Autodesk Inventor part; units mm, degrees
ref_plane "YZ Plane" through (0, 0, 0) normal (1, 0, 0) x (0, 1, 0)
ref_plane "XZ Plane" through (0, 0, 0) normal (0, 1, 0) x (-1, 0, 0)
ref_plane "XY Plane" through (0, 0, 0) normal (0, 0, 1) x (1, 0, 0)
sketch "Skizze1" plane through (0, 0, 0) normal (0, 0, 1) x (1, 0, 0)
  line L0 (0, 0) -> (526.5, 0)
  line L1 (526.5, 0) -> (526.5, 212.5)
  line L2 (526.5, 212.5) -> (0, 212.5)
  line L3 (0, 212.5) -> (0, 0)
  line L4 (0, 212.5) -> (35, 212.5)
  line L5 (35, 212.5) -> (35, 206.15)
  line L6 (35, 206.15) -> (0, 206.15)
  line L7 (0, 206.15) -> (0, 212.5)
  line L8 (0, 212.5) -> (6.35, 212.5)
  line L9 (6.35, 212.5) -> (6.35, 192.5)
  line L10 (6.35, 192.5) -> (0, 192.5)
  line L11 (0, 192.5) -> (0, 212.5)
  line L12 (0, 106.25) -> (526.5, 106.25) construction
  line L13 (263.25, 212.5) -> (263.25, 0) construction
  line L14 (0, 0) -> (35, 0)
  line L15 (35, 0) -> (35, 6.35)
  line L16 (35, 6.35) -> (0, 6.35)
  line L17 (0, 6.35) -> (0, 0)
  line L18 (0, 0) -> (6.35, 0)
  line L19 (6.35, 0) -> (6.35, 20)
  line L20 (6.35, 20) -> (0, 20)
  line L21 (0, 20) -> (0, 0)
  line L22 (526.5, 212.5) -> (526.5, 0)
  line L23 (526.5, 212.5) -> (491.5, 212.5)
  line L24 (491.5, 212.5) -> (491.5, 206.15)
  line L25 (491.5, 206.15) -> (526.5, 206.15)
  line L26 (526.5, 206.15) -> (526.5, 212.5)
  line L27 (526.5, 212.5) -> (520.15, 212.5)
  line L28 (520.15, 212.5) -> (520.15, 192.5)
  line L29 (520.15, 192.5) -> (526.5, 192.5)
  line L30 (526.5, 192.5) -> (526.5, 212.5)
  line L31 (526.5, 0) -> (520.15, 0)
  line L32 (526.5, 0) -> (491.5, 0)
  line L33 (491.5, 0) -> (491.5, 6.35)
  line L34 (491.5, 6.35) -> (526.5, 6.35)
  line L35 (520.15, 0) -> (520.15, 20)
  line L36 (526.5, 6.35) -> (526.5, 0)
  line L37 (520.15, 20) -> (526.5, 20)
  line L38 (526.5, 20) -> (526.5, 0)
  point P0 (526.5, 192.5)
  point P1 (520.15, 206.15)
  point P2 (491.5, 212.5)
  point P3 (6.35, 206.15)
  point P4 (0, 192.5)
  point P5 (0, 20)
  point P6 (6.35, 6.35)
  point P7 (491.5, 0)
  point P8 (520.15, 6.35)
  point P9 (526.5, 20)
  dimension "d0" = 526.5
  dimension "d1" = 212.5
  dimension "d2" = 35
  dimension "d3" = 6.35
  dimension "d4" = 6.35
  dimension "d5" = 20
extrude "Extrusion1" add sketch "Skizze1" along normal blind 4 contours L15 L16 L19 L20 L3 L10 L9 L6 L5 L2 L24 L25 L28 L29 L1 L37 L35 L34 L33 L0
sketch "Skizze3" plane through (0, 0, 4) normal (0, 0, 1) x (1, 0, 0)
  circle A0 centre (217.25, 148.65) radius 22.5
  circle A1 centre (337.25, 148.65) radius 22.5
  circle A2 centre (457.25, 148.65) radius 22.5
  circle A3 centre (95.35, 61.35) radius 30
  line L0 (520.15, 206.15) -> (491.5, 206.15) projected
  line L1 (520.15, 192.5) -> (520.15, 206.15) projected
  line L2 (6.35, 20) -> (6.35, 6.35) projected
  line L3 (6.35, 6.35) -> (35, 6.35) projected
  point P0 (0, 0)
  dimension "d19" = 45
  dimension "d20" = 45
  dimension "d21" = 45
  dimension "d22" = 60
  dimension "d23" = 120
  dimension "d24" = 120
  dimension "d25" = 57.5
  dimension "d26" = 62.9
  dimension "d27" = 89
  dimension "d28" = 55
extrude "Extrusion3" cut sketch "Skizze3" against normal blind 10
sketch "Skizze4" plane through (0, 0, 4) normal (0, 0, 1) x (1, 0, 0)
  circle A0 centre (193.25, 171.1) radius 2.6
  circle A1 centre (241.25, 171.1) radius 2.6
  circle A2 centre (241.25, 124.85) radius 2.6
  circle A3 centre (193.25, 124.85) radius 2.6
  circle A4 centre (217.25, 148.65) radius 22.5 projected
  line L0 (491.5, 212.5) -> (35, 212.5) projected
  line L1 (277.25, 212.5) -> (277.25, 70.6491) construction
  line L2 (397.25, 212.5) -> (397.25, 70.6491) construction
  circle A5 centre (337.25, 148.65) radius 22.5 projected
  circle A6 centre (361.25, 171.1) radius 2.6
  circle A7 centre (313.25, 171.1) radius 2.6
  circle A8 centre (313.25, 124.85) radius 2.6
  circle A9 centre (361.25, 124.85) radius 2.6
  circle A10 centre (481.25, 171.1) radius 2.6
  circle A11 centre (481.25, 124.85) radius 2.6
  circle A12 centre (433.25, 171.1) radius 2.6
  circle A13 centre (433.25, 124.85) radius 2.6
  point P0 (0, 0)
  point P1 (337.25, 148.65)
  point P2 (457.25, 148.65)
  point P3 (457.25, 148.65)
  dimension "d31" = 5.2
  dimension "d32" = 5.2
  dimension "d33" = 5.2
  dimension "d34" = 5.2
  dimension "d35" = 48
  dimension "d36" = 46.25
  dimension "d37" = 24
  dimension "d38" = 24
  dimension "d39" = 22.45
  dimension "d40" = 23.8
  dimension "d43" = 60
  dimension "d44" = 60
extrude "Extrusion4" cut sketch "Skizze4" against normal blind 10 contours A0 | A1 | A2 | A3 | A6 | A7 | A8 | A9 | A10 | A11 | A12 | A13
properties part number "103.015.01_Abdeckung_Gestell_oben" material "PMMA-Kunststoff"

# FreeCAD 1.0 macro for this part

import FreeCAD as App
import Part
import Sketcher

V = App.Vector

doc = App.newDocument("Part")
params = doc.addObject("Spreadsheet::Sheet", "Params")
for row, (alias, value) in enumerate([
    ("sketch1_width", "6.35 mm"),
    ("pad1_length", "4 mm"),
    ("sketch2_diameter", "45 mm"),
    ("sketch2_diameter2", "60 mm"),
    ("pocket1_length", "10 mm"),
    ("sketch3_diameter", "5.2 mm"),
    ("pocket2_length", "10 mm"),
], start=1):
    params.set(f"A{row}", alias)
    params.set(f"B{row}", "=" + value)
    params.setAlias(f"B{row}", alias)

body = doc.addObject("PartDesign::Body", "Body")

# Sketch on XY plane
sketch1 = doc.addObject("Sketcher::SketchObject", "Sketch")
body.addObject(sketch1)
sketch1.AttachmentSupport = (doc.XY_Plane, [""])
sketch1.MapMode = "FlatFace"
sketch1.addGeometry(Part.LineSegment(V(35, 6.35, 0), V(35, 0, 0)), False)
sketch1.addGeometry(Part.LineSegment(V(35, 0, 0), V(491.5, 0, 0)), False)
sketch1.addGeometry(Part.LineSegment(V(491.5, 0, 0), V(491.5, 6.35, 0)), False)
sketch1.addGeometry(Part.LineSegment(V(491.5, 6.35, 0), V(520.15, 6.35, 0)), False)
sketch1.addGeometry(Part.LineSegment(V(520.15, 6.35, 0), V(520.15, 20, 0)), False)
sketch1.addGeometry(Part.LineSegment(V(520.15, 20, 0), V(526.5, 20, 0)), False)
sketch1.addGeometry(Part.LineSegment(V(526.5, 20, 0), V(526.5, 192.5, 0)), False)
sketch1.addGeometry(Part.LineSegment(V(526.5, 192.5, 0), V(520.15, 192.5, 0)), False)
sketch1.addGeometry(Part.LineSegment(V(520.15, 192.5, 0), V(520.15, 206.15, 0)), False)
sketch1.addGeometry(Part.LineSegment(V(520.15, 206.15, 0), V(491.5, 206.15, 0)), False)
sketch1.addGeometry(Part.LineSegment(V(491.5, 206.15, 0), V(491.5, 212.5, 0)), False)
sketch1.addGeometry(Part.LineSegment(V(491.5, 212.5, 0), V(35, 212.5, 0)), False)
sketch1.addGeometry(Part.LineSegment(V(35, 212.5, 0), V(35, 206.15, 0)), False)
sketch1.addGeometry(Part.LineSegment(V(35, 206.15, 0), V(6.35, 206.15, 0)), False)
sketch1.addGeometry(Part.LineSegment(V(6.35, 206.15, 0), V(6.35, 192.5, 0)), False)
sketch1.addGeometry(Part.LineSegment(V(6.35, 192.5, 0), V(0, 192.5, 0)), False)
sketch1.addGeometry(Part.LineSegment(V(0, 192.5, 0), V(0, 20, 0)), False)
sketch1.addGeometry(Part.LineSegment(V(0, 20, 0), V(6.35, 20, 0)), False)
sketch1.addGeometry(Part.LineSegment(V(6.35, 20, 0), V(6.35, 6.35, 0)), False)
sketch1.addGeometry(Part.LineSegment(V(6.35, 6.35, 0), V(35, 6.35, 0)), False)
sketch1.addConstraint(Sketcher.Constraint("Coincident", 0, 2, 1, 1))
sketch1.addConstraint(Sketcher.Constraint("Coincident", 1, 2, 2, 1))
sketch1.addConstraint(Sketcher.Constraint("Coincident", 2, 2, 3, 1))
sketch1.addConstraint(Sketcher.Constraint("Coincident", 3, 2, 4, 1))
sketch1.addConstraint(Sketcher.Constraint("Coincident", 4, 2, 5, 1))
sketch1.addConstraint(Sketcher.Constraint("Coincident", 5, 2, 6, 1))
sketch1.addConstraint(Sketcher.Constraint("Coincident", 6, 2, 7, 1))
sketch1.addConstraint(Sketcher.Constraint("Coincident", 7, 2, 8, 1))
sketch1.addConstraint(Sketcher.Constraint("Coincident", 8, 2, 9, 1))
sketch1.addConstraint(Sketcher.Constraint("Coincident", 9, 2, 10, 1))
sketch1.addConstraint(Sketcher.Constraint("Coincident", 10, 2, 11, 1))
sketch1.addConstraint(Sketcher.Constraint("Coincident", 11, 2, 12, 1))
sketch1.addConstraint(Sketcher.Constraint("Coincident", 12, 2, 13, 1))
sketch1.addConstraint(Sketcher.Constraint("Coincident", 13, 2, 14, 1))
sketch1.addConstraint(Sketcher.Constraint("Coincident", 14, 2, 15, 1))
sketch1.addConstraint(Sketcher.Constraint("Coincident", 15, 2, 16, 1))
sketch1.addConstraint(Sketcher.Constraint("Coincident", 16, 2, 17, 1))
sketch1.addConstraint(Sketcher.Constraint("Coincident", 17, 2, 18, 1))
sketch1.addConstraint(Sketcher.Constraint("Coincident", 18, 2, 19, 1))
sketch1.addConstraint(Sketcher.Constraint("Coincident", 19, 2, 0, 1))
sketch1.addConstraint(Sketcher.Constraint("Vertical", 0))
sketch1.addConstraint(Sketcher.Constraint("Horizontal", 1))
sketch1.addConstraint(Sketcher.Constraint("Vertical", 2))
sketch1.addConstraint(Sketcher.Constraint("Horizontal", 3))
sketch1.addConstraint(Sketcher.Constraint("Vertical", 4))
sketch1.addConstraint(Sketcher.Constraint("Horizontal", 5))
sketch1.addConstraint(Sketcher.Constraint("Vertical", 6))
sketch1.addConstraint(Sketcher.Constraint("Horizontal", 7))
sketch1.addConstraint(Sketcher.Constraint("Vertical", 8))
sketch1.addConstraint(Sketcher.Constraint("Horizontal", 9))
sketch1.addConstraint(Sketcher.Constraint("Vertical", 10))
sketch1.addConstraint(Sketcher.Constraint("Horizontal", 11))
sketch1.addConstraint(Sketcher.Constraint("Vertical", 12))
sketch1.addConstraint(Sketcher.Constraint("Horizontal", 13))
sketch1.addConstraint(Sketcher.Constraint("Vertical", 14))
sketch1.addConstraint(Sketcher.Constraint("Horizontal", 15))
sketch1.addConstraint(Sketcher.Constraint("Vertical", 16))
sketch1.addConstraint(Sketcher.Constraint("Horizontal", 17))
sketch1.addConstraint(Sketcher.Constraint("Vertical", 18))
sketch1.addConstraint(Sketcher.Constraint("Horizontal", 19))
sketch1.addConstraint(Sketcher.Constraint("PointOnObject", 0, 2, -1))
sketch1.addConstraint(Sketcher.Constraint("PointOnObject", 15, 2, -2))
sketch1.addConstraint(Sketcher.Constraint("Horizontal", 9, 2, 12, 2))
sketch1.addConstraint(Sketcher.Constraint("Horizontal", 7, 2, 14, 2))
sketch1.addConstraint(Sketcher.Constraint("Horizontal", 5, 2, 16, 2))
sketch1.addConstraint(Sketcher.Constraint("Horizontal", 3, 2, 18, 2))
sketch1.addConstraint(Sketcher.Constraint("Vertical", 4, 2, 7, 2))
sketch1.addConstraint(Sketcher.Constraint("Vertical", 2, 2, 9, 2))
sketch1.addConstraint(Sketcher.Constraint("Vertical", 0, 2, 11, 2))
sketch1.addConstraint(Sketcher.Constraint("Vertical", 14, 2, 17, 2))
sketch1.addConstraint(Sketcher.Constraint("Equal", 9, 13))
sketch1.addConstraint(Sketcher.Constraint("Equal", 7, 15))
sketch1.addConstraint(Sketcher.Constraint("Equal", 17, 0))
sketch1.addConstraint(Sketcher.Constraint("Equal", 4, 8))
sketch1.addConstraint(Sketcher.Constraint("Equal", 2, 10))
sketch1.addConstraint(Sketcher.Constraint("DistanceX", -1, 1, 0, 2, 35.0))
sketch1.addConstraint(Sketcher.Constraint("DistanceY", -1, 1, 4, 2, 20.0))
sketch1.addConstraint(Sketcher.Constraint("DistanceX", 5, 1, 5, 2, 6.35))
sketch1.addConstraint(Sketcher.Constraint("DistanceX", -1, 1, 5, 2, 526.5))
sketch1.addConstraint(Sketcher.Constraint("DistanceY", -1, 1, 10, 2, 212.5))
sketch1.setExpression("Constraints[57]", "Params.sketch1_width")
pad1 = doc.addObject("PartDesign::Pad", "Pad")
body.addObject(pad1)
pad1.Profile = sketch1
pad1.setExpression("Length", "Params.pad1_length")

# Sketch on XY plane
sketch2 = doc.addObject("Sketcher::SketchObject", "Sketch001")
body.addObject(sketch2)
sketch2.AttachmentSupport = (doc.XY_Plane, [""])
sketch2.MapMode = "FlatFace"
sketch2.AttachmentOffset = App.Placement(V(0, 0, 4), App.Rotation())
sketch2.addGeometry(Part.Circle(V(217.25, 148.65, 0), V(0, 0, 1), 22.5), False)
sketch2.addGeometry(Part.Circle(V(337.25, 148.65, 0), V(0, 0, 1), 22.5), False)
sketch2.addGeometry(Part.Circle(V(457.25, 148.65, 0), V(0, 0, 1), 22.5), False)
sketch2.addGeometry(Part.Circle(V(95.35, 61.35, 0), V(0, 0, 1), 30), False)
sketch2.addConstraint(Sketcher.Constraint("Equal", 0, 1))
sketch2.addConstraint(Sketcher.Constraint("Equal", 1, 2))
sketch2.addConstraint(Sketcher.Constraint("Horizontal", 0, 3, 1, 3))
sketch2.addConstraint(Sketcher.Constraint("Horizontal", 1, 3, 2, 3))
sketch2.addConstraint(Sketcher.Constraint("Diameter", 0, 45.0))
sketch2.addConstraint(Sketcher.Constraint("Diameter", 3, 60.0))
sketch2.addConstraint(Sketcher.Constraint("DistanceX", 0, 3, 1, 3, 120.0))
sketch2.addConstraint(Sketcher.Constraint("DistanceX", 1, 3, 2, 3, 120.0))
sketch2.addConstraint(Sketcher.Constraint("DistanceX", 3, 3, 0, 3, 121.9))
sketch2.addConstraint(Sketcher.Constraint("DistanceY", 3, 3, 0, 3, 87.3))
sketch2.addConstraint(Sketcher.Constraint("DistanceX", -1, 1, 0, 3, 217.25))
sketch2.addConstraint(Sketcher.Constraint("DistanceY", -1, 1, 0, 3, 148.65))
sketch2.setExpression("Constraints[4]", "Params.sketch2_diameter")
sketch2.setExpression("Constraints[5]", "Params.sketch2_diameter2")
pocket1 = doc.addObject("PartDesign::Pocket", "Pocket")
body.addObject(pocket1)
pocket1.Profile = sketch2
pocket1.setExpression("Length", "Params.pocket1_length")

# Sketch on XY plane
sketch3 = doc.addObject("Sketcher::SketchObject", "Sketch002")
body.addObject(sketch3)
sketch3.AttachmentSupport = (doc.XY_Plane, [""])
sketch3.MapMode = "FlatFace"
sketch3.AttachmentOffset = App.Placement(V(0, 0, 4), App.Rotation())
sketch3.addGeometry(Part.Circle(V(193.25, 171.1, 0), V(0, 0, 1), 2.6), False)
sketch3.addGeometry(Part.Circle(V(241.25, 171.1, 0), V(0, 0, 1), 2.6), False)
sketch3.addGeometry(Part.Circle(V(241.25, 124.85, 0), V(0, 0, 1), 2.6), False)
sketch3.addGeometry(Part.Circle(V(193.25, 124.85, 0), V(0, 0, 1), 2.6), False)
sketch3.addGeometry(Part.Circle(V(361.25, 171.1, 0), V(0, 0, 1), 2.6), False)
sketch3.addGeometry(Part.Circle(V(313.25, 171.1, 0), V(0, 0, 1), 2.6), False)
sketch3.addGeometry(Part.Circle(V(313.25, 124.85, 0), V(0, 0, 1), 2.6), False)
sketch3.addGeometry(Part.Circle(V(361.25, 124.85, 0), V(0, 0, 1), 2.6), False)
sketch3.addGeometry(Part.Circle(V(481.25, 171.1, 0), V(0, 0, 1), 2.6), False)
sketch3.addGeometry(Part.Circle(V(481.25, 124.85, 0), V(0, 0, 1), 2.6), False)
sketch3.addGeometry(Part.Circle(V(433.25, 171.1, 0), V(0, 0, 1), 2.6), False)
sketch3.addGeometry(Part.Circle(V(433.25, 124.85, 0), V(0, 0, 1), 2.6), False)
sketch3.addConstraint(Sketcher.Constraint("Equal", 0, 1))
sketch3.addConstraint(Sketcher.Constraint("Equal", 1, 2))
sketch3.addConstraint(Sketcher.Constraint("Equal", 2, 3))
sketch3.addConstraint(Sketcher.Constraint("Equal", 3, 4))
sketch3.addConstraint(Sketcher.Constraint("Equal", 4, 5))
sketch3.addConstraint(Sketcher.Constraint("Equal", 5, 6))
sketch3.addConstraint(Sketcher.Constraint("Equal", 6, 7))
sketch3.addConstraint(Sketcher.Constraint("Equal", 7, 8))
sketch3.addConstraint(Sketcher.Constraint("Equal", 8, 9))
sketch3.addConstraint(Sketcher.Constraint("Equal", 9, 10))
sketch3.addConstraint(Sketcher.Constraint("Equal", 10, 11))
sketch3.addConstraint(Sketcher.Constraint("Horizontal", 0, 3, 1, 3))
sketch3.addConstraint(Sketcher.Constraint("Horizontal", 2, 3, 3, 3))
sketch3.addConstraint(Sketcher.Constraint("Horizontal", 1, 3, 4, 3))
sketch3.addConstraint(Sketcher.Constraint("Horizontal", 4, 3, 5, 3))
sketch3.addConstraint(Sketcher.Constraint("Horizontal", 3, 3, 6, 3))
sketch3.addConstraint(Sketcher.Constraint("Horizontal", 6, 3, 7, 3))
sketch3.addConstraint(Sketcher.Constraint("Horizontal", 5, 3, 8, 3))
sketch3.addConstraint(Sketcher.Constraint("Horizontal", 7, 3, 9, 3))
sketch3.addConstraint(Sketcher.Constraint("Horizontal", 8, 3, 10, 3))
sketch3.addConstraint(Sketcher.Constraint("Horizontal", 9, 3, 11, 3))
sketch3.addConstraint(Sketcher.Constraint("Vertical", 1, 3, 2, 3))
sketch3.addConstraint(Sketcher.Constraint("Vertical", 0, 3, 3, 3))
sketch3.addConstraint(Sketcher.Constraint("Vertical", 5, 3, 6, 3))
sketch3.addConstraint(Sketcher.Constraint("Vertical", 4, 3, 7, 3))
sketch3.addConstraint(Sketcher.Constraint("Vertical", 8, 3, 9, 3))
sketch3.addConstraint(Sketcher.Constraint("Vertical", 10, 3, 11, 3))
sketch3.addConstraint(Sketcher.Constraint("Diameter", 0, 5.2))
sketch3.addConstraint(Sketcher.Constraint("DistanceX", 0, 3, 1, 3, 48.0))
sketch3.addConstraint(Sketcher.Constraint("DistanceX", 5, 3, 4, 3, 48.0))
sketch3.addConstraint(Sketcher.Constraint("DistanceX", 10, 3, 8, 3, 48.0))
sketch3.addConstraint(Sketcher.Constraint("DistanceY", 2, 3, 1, 3, 46.25))
sketch3.addConstraint(Sketcher.Constraint("DistanceX", 1, 3, 4, 3, 120.0))
sketch3.addConstraint(Sketcher.Constraint("DistanceX", 4, 3, 8, 3, 120.0))
sketch3.addConstraint(Sketcher.Constraint("DistanceY", -1, 1, 0, 3, 171.1))
sketch3.addConstraint(Sketcher.Constraint("DistanceX", -1, 1, 0, 3, 193.25))
sketch3.setExpression("Constraints[27]", "Params.sketch3_diameter")
pocket2 = doc.addObject("PartDesign::Pocket", "Pocket001")
body.addObject(pocket2)
pocket2.Profile = sketch3
pocket2.setExpression("Length", "Params.pocket2_length")

doc.recompute()
